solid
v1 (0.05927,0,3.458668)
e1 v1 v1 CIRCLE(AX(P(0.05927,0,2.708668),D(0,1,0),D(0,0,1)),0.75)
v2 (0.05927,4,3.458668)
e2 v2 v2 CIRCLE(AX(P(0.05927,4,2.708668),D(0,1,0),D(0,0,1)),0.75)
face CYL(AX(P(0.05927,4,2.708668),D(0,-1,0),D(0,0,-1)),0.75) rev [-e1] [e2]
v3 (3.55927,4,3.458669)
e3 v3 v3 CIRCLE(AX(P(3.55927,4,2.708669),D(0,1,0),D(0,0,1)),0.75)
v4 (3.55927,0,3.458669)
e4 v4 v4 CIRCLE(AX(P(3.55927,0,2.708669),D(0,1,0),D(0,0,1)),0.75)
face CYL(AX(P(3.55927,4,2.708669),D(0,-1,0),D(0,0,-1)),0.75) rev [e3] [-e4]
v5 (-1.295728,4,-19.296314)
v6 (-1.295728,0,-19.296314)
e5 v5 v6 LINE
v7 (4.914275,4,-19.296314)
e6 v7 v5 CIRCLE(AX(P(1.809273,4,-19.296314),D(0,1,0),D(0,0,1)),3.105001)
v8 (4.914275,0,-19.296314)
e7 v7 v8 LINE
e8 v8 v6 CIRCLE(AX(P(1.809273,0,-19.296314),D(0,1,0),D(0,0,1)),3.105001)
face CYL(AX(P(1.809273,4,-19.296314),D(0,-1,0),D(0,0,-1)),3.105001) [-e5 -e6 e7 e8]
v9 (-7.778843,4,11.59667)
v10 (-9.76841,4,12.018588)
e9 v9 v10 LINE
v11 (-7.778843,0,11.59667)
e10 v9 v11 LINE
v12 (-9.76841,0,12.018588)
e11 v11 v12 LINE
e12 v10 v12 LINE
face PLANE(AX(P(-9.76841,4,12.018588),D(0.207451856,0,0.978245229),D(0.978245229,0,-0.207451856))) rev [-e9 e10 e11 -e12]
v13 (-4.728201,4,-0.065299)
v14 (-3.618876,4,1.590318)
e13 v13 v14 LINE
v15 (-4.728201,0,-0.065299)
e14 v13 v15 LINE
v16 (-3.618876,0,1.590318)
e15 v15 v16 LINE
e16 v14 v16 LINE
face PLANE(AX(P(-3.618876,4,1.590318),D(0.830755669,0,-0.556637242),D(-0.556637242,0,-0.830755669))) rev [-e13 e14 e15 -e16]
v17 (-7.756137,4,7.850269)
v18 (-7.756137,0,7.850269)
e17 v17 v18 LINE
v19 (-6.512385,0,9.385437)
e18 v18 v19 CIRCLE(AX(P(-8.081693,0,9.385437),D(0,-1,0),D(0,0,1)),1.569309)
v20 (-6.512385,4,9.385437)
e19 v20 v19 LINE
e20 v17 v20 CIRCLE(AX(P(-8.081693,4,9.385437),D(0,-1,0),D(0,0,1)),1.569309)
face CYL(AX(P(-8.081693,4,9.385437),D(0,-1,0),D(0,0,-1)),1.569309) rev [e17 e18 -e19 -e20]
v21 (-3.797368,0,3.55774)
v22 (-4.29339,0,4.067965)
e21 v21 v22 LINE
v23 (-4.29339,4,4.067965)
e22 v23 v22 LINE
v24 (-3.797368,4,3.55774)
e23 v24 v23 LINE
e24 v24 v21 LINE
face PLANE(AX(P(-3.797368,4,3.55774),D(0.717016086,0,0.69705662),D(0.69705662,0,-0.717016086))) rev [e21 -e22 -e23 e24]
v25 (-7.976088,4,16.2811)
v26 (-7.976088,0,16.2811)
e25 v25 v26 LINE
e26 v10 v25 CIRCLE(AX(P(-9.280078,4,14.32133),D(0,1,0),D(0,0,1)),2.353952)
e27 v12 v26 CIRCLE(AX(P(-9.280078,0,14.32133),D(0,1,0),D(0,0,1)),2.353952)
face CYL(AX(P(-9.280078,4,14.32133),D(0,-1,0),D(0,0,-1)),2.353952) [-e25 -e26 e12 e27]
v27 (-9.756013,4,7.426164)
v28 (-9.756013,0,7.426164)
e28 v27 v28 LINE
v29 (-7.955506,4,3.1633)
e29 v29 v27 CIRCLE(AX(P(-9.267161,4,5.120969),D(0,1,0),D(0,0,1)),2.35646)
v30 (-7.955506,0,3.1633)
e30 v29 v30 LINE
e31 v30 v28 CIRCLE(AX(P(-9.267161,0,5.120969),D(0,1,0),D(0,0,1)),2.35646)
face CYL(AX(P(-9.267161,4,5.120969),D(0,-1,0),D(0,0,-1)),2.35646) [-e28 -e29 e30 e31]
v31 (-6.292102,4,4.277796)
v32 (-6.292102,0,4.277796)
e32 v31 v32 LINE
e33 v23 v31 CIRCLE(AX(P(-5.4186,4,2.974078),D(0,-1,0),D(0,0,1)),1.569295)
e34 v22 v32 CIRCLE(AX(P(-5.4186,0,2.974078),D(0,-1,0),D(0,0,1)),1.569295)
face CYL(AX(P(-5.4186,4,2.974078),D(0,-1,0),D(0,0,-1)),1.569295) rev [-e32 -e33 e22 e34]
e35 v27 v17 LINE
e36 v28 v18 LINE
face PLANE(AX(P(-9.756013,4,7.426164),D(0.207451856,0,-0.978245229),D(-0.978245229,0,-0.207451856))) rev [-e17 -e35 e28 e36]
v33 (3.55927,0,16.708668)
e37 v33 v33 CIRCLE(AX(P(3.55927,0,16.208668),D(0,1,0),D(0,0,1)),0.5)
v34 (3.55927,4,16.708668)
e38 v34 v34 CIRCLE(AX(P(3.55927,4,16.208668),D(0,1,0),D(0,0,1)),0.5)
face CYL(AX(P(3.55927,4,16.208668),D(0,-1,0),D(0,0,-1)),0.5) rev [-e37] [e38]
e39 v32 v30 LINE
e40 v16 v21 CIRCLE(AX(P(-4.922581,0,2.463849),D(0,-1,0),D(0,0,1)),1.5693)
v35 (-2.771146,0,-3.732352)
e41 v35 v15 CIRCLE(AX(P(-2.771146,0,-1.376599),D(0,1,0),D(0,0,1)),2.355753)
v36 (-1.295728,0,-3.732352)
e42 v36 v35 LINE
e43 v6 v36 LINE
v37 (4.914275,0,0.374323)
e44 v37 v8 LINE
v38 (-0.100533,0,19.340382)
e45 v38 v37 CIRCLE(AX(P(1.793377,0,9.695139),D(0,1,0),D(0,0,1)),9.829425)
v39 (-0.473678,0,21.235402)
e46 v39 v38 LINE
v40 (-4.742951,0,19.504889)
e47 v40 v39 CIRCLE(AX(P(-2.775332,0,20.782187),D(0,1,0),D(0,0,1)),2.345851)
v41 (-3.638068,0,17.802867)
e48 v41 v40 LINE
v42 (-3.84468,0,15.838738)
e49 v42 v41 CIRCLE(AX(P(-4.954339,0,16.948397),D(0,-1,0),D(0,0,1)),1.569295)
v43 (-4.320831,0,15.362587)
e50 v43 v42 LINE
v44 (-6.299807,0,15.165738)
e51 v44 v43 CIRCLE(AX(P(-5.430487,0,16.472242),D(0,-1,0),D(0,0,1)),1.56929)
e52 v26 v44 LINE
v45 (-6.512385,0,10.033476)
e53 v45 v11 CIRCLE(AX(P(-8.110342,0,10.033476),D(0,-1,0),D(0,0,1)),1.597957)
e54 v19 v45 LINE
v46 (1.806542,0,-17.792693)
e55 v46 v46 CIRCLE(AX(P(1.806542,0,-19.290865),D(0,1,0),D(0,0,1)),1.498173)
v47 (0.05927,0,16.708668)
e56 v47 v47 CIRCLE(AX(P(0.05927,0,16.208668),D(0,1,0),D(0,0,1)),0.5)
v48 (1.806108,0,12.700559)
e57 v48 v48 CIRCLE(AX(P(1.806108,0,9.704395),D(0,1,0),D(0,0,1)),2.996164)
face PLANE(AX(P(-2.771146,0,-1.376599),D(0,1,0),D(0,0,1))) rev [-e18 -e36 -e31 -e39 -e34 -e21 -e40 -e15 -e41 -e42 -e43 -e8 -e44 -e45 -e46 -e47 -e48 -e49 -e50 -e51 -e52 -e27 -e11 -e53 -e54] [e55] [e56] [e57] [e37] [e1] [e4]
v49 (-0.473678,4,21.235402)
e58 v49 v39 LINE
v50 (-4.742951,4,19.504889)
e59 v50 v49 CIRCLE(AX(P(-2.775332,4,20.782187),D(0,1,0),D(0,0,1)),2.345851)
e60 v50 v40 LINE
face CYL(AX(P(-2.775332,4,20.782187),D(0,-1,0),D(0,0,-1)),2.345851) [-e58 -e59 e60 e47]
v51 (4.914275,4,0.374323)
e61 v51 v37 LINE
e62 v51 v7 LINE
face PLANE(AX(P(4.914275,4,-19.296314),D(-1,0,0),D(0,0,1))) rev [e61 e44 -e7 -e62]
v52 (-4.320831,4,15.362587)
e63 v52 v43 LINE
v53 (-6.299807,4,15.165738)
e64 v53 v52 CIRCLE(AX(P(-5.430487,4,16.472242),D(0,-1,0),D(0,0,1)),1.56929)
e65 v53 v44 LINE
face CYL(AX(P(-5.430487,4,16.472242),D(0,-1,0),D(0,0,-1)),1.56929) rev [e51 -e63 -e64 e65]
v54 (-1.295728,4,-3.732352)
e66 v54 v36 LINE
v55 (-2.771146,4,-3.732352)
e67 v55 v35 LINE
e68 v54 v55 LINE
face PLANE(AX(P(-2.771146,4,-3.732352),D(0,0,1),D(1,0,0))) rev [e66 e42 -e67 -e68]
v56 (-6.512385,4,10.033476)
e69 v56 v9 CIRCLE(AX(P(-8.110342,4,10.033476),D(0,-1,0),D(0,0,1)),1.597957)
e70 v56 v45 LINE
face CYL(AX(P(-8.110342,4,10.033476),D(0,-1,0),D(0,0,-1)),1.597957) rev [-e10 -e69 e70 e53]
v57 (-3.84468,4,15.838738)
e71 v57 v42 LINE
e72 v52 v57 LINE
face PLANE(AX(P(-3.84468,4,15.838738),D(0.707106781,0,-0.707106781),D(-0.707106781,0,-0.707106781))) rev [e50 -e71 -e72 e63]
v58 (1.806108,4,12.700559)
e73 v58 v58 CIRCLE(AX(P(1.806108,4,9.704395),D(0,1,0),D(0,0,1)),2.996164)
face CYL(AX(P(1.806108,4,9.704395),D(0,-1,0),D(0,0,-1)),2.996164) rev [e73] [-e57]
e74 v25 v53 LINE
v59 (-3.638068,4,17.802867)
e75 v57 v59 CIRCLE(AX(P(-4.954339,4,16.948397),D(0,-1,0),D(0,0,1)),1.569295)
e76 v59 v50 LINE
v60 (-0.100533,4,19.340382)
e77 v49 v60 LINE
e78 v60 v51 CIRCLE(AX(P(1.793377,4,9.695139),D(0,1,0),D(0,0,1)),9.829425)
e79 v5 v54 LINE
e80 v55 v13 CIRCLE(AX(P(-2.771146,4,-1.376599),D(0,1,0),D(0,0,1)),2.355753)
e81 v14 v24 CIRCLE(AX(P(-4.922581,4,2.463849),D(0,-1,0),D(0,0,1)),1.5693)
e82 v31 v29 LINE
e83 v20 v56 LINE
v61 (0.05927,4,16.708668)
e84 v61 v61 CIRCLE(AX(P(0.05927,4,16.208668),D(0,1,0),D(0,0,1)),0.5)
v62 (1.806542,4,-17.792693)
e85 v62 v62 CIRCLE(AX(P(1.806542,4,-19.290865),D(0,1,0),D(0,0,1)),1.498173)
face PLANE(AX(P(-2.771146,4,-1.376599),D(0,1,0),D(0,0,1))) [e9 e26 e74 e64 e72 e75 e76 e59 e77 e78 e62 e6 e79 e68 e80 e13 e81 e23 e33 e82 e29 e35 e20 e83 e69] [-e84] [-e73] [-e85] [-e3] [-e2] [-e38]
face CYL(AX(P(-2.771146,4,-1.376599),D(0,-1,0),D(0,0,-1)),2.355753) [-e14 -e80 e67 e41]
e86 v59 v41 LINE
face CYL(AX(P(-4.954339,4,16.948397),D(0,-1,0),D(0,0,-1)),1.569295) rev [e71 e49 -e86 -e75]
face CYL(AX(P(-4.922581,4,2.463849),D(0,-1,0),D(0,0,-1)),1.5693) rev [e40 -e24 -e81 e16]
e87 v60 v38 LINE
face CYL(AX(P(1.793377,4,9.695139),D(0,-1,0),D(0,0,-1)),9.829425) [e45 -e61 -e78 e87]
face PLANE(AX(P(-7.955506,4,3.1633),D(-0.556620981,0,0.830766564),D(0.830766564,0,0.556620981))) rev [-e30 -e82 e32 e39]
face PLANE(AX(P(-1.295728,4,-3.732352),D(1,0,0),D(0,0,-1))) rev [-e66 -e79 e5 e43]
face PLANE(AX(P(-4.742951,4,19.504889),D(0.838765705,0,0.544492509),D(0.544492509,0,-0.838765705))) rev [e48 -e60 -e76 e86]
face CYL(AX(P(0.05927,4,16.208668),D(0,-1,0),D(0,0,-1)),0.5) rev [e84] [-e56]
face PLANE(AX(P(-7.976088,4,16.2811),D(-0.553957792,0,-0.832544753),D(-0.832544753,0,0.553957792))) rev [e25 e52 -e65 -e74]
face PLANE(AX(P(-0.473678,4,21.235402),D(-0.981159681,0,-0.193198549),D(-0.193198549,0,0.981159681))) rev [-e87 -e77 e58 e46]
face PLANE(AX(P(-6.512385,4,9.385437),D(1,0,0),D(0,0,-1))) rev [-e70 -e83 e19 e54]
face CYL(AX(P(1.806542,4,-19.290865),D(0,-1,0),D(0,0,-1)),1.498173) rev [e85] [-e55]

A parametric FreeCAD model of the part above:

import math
import FreeCAD as App
import Part
import Sketcher

V = App.Vector
Q = App.Units.Quantity

doc = App.newDocument("Part")
params = doc.addObject("Spreadsheet::Sheet", "Params")
for row, (alias, value) in enumerate([
    ("sketch1_diameter", "1 mm"),
    ("sketch1_diameter2", "1.499999 mm"),
    ("pad1_length", "4 mm"),
], start=1):
    params.set(f"A{row}", alias)
    params.set(f"B{row}", "=" + value)
    params.setAlias(f"B{row}", alias)

body = doc.addObject("PartDesign::Body", "Body")

sketch1 = body.newObject("Sketcher::SketchObject", "Sketch")
sketch1.AttachmentSupport = (doc.getObject("XZ_Plane"), [""])
sketch1.MapMode = "FlatFace"
sketch1.addGeometry([
    Part.LineSegment(V(-1.295728, -3.732352, 0), V(-2.771146, -3.732352, 0)),
    Part.ArcOfCircle(Part.Circle(V(-2.771146, -1.376599, 0), V(0, 0, 1), 2.355753), math.radians(146.176442), math.radians(270)),
    Part.LineSegment(V(-4.728201, -0.065299, 0), V(-3.618876, 1.590318, 0)),
    Part.ArcOfCircle(Part.Circle(V(-4.922581, 2.463849, 0), V(0, 0, 1), 1.5693), math.radians(-33.823558), math.radians(44.191331)),
    Part.LineSegment(V(-3.797368, 3.55774, 0), V(-4.29339, 4.067965, 0)),
    Part.ArcOfCircle(Part.Circle(V(-5.4186, 2.974078, 0), V(0, 0, 1), 1.569295), math.radians(44.191331), math.radians(123.822437)),
    Part.LineSegment(V(-6.292102, 4.277796, 0), V(-7.955506, 3.1633, 0)),
    Part.ArcOfCircle(Part.Circle(V(-9.267161, 5.120969, 0), V(0, 0, 1), 2.35646), math.radians(101.973066), math.radians(303.822437)),
    Part.LineSegment(V(-9.756013, 7.426164, 0), V(-7.756137, 7.850269, 0)),
    Part.ArcOfCircle(Part.Circle(V(-8.081693, 9.385437, 0), V(0, 0, 1), 1.569309), math.radians(-78.026934), math.radians(0)),
    Part.LineSegment(V(-6.512385, 9.385437, 0), V(-6.512385, 10.033476, 0)),
    Part.ArcOfCircle(Part.Circle(V(-8.110342, 10.033476, 0), V(0, 0, 1), 1.597957), math.radians(0), math.radians(78.026934)),
    Part.LineSegment(V(-7.778843, 11.59667, 0), V(-9.76841, 12.018588, 0)),
    Part.ArcOfCircle(Part.Circle(V(-9.280078, 14.32133, 0), V(0, 0, 1), 2.353952), math.radians(56.36104), math.radians(258.026934)),
    Part.LineSegment(V(-7.976088, 16.2811, 0), V(-6.299807, 15.165738, 0)),
    Part.ArcOfCircle(Part.Circle(V(-5.430487, 16.472242, 0), V(0, 0, 1), 1.56929), math.radians(-123.63896), math.radians(-45)),
    Part.LineSegment(V(-4.320831, 15.362587, 0), V(-3.84468, 15.838738, 0)),
    Part.ArcOfCircle(Part.Circle(V(-4.954339, 16.948397, 0), V(0, 0, 1), 1.569295), math.radians(-45), math.radians(32.98999)),
    Part.LineSegment(V(-3.638068, 17.802867, 0), V(-4.742951, 19.504889, 0)),
    Part.ArcOfCircle(Part.Circle(V(-2.775332, 20.782187, 0), V(0, 0, 1), 2.345851), math.radians(11.139507), math.radians(212.98999)),
    Part.LineSegment(V(-0.473678, 21.235402, 0), V(-0.100533, 19.340382, 0)),
    Part.ArcOfCircle(Part.Circle(V(1.793377, 9.695139, 0), V(0, 0, 1), 9.829425), math.radians(-71.487859), math.radians(101.109089)),
    Part.LineSegment(V(4.914275, 0.374323, 0), V(4.914275, -19.296314, 0)),
    Part.ArcOfCircle(Part.Circle(V(1.809273, -19.296314, 0), V(0, 0, 1), 3.105001), math.radians(180), math.radians(360)),
    Part.LineSegment(V(-1.295728, -19.296314, 0), V(-1.295728, -3.732352, 0)),
    Part.Circle(V(3.55927, 16.208668, 0), V(0, 0, 1), 0.5),
    Part.Circle(V(3.55927, 2.708669, 0), V(0, 0, 1), 0.75),
    Part.Circle(V(1.806108, 9.704395, 0), V(0, 0, 1), 2.996164),
    Part.Circle(V(0.05927, 16.208668, 0), V(0, 0, 1), 0.5),
    Part.Circle(V(0.05927, 2.708668, 0), V(0, 0, 1), 0.75),
    Part.Circle(V(1.806542, -19.290865, 0), V(0, 0, 1), 1.498173),
], False)
sketch1.addConstraint([
    Sketcher.Constraint("Tangent", 0, 2, 1, 2),
    Sketcher.Constraint("Tangent", 1, 1, 2, 1),
    Sketcher.Constraint("Tangent", 2, 2, 3, 1),
    Sketcher.Constraint("Tangent", 3, 2, 4, 1),
    Sketcher.Constraint("Tangent", 4, 2, 5, 1),
    Sketcher.Constraint("Tangent", 5, 2, 6, 1),
    Sketcher.Constraint("Tangent", 6, 2, 7, 2),
    Sketcher.Constraint("Tangent", 7, 1, 8, 1),
    Sketcher.Constraint("Tangent", 8, 2, 9, 1),
    Sketcher.Constraint("Tangent", 9, 2, 10, 1),
    Sketcher.Constraint("Tangent", 10, 2, 11, 1),
    Sketcher.Constraint("Tangent", 11, 2, 12, 1),
    Sketcher.Constraint("Tangent", 12, 2, 13, 2),
    Sketcher.Constraint("Tangent", 13, 1, 14, 1),
    Sketcher.Constraint("Tangent", 14, 2, 15, 1),
    Sketcher.Constraint("Tangent", 15, 2, 16, 1),
    Sketcher.Constraint("Tangent", 16, 2, 17, 1),
    Sketcher.Constraint("Tangent", 17, 2, 18, 1),
    Sketcher.Constraint("Tangent", 18, 2, 19, 2),
    Sketcher.Constraint("Tangent", 19, 1, 20, 1),
    Sketcher.Constraint("Coincident", 20, 2, 21, 2),
    Sketcher.Constraint("Coincident", 21, 1, 22, 1),
    Sketcher.Constraint("Tangent", 22, 2, 23, 2),
    Sketcher.Constraint("Tangent", 23, 1, 24, 1),
    Sketcher.Constraint("Coincident", 24, 2, 0, 1),
    Sketcher.Constraint("Horizontal", 0),
    Sketcher.Constraint("Vertical", 10),
    Sketcher.Constraint("Vertical", 22),
    Sketcher.Constraint("Vertical", 24),
    Sketcher.Constraint("Equal", 5, 17),
    Sketcher.Constraint("Equal", 25, 28),
    Sketcher.Constraint("Equal", 26, 29),
    Sketcher.Constraint("Horizontal", 25, 3, 28, 3),
    Sketcher.Constraint("Horizontal", 26, 3, 29, 3),
    Sketcher.Constraint("Vertical", 25, 3, 26, 3),
    Sketcher.Constraint("Vertical", 28, 3, 29, 3),
    Sketcher.Constraint("Diameter", 25, Q("1 mm")),
    Sketcher.Constraint("Diameter", 26, Q("1.499999 mm")),
    Sketcher.Constraint("Angle", 16, Q("45 deg")),
    Sketcher.Constraint("Radius", 23, Q("3.105001 mm")),
    Sketcher.Constraint("Angle", 18, Q("122.98999 deg")),
    Sketcher.Constraint("Radius", 3, Q("1.5693 mm")),
    Sketcher.Constraint("DistanceX", 28, 3, 25, 3, Q("3.500001 mm")),
    Sketcher.Constraint("Diameter", 27, Q("5.992328 mm")),
    Sketcher.Constraint("Radius", 7, Q("2.35646 mm")),
    Sketcher.Constraint("Radius", 9, Q("1.569309 mm")),
    Sketcher.Constraint("Radius", 13, Q("2.353952 mm")),
    Sketcher.Constraint("Radius", 15, Q("1.56929 mm")),
    Sketcher.Constraint("Radius", 19, Q("2.345851 mm")),
    Sketcher.Constraint("Diameter", 30, Q("2.996345 mm")),
    Sketcher.Constraint("Radius", 1, Q("2.355753 mm")),
    Sketcher.Constraint("Radius", 5, Q("1.569295 mm")),
    Sketcher.Constraint("Radius", 11, Q("1.597957 mm")),
    Sketcher.Constraint("Radius", 21, Q("9.829425 mm")),
    Sketcher.Constraint("DistanceY", 14, 2, 16, 2, Q("0.673 mm")),
    Sketcher.Constraint("DistanceX", 24, 2, 29, 3, Q("1.354998 mm")),
    Sketcher.Constraint("Distance", 18, Q("2.029198 mm")),
    Sketcher.Constraint("DistanceY", 10, 1, 10, 2, Q("0.648039 mm")),
    Sketcher.Constraint("DistanceY", 24, 1, 24, 2, Q("15.563962 mm")),
    Sketcher.Constraint("DistanceY", 1, 3, -1, 1, Q("1.376599 mm")),
    Sketcher.Constraint("DistanceX", 5, 3, -1, 1, Q("5.4186 mm")),
    Sketcher.Constraint("DistanceX", 1, 1, -1, 1, Q("4.728201 mm")),
    Sketcher.Constraint("DistanceY", 1, 1, -1, 1, Q("0.065299 mm")),
    Sketcher.Constraint("DistanceY", -1, 1, 6, 2, Q("3.1633 mm")),
    Sketcher.Constraint("DistanceY", -1, 1, 13, 1, Q("16.2811 mm")),
    Sketcher.Constraint("DistanceY", 5, 3, 11, 3, Q("7.059398 mm")),
    Sketcher.Constraint("DistanceY", 9, 3, 21, 3, Q("0.309702 mm")),
    Sketcher.Constraint("DistanceY", 26, 3, 7, 3, Q("2.412299 mm")),
    Sketcher.Constraint("DistanceY", 0, 2, 3, 3, Q("6.196201 mm")),
    Sketcher.Constraint("DistanceY", 7, 3, 8, 2, Q("2.7293 mm")),
    Sketcher.Constraint("DistanceX", 11, 3, 11, 2, Q("0.331499 mm")),
    Sketcher.Constraint("DistanceX", 13, 1, 15, 3, Q("2.545602 mm")),
    Sketcher.Constraint("DistanceX", 15, 2, 28, 3, Q("4.380101 mm")),
    Sketcher.Constraint("DistanceX", 19, 3, 20, 2, Q("2.674799 mm")),
    Sketcher.Constraint("Distance", 6, Q("2.002252 mm")),
    Sketcher.Constraint("Distance", 8, Q("2.04435 mm")),
    Sketcher.Constraint("Distance", 12, Q("2.033812 mm")),
    Sketcher.Constraint("Distance", 20, Q("1.931409 mm")),
    Sketcher.Constraint("DistanceX", -1, 1, 27, 3, Q("1.806108 mm")),
    Sketcher.Constraint("DistanceY", 21, 3, 25, 3, Q("6.513529 mm")),
    Sketcher.Constraint("DistanceX", 30, 3, 23, 3, Q("0.002731 mm")),
    Sketcher.Constraint("DistanceY", 23, 3, 30, 3, Q("0.005449 mm")),
    Sketcher.Constraint("DistanceY", -1, 1, 27, 3, Q("9.704395 mm")),
])
sketch1.setExpression("Constraints[36]", "Params.sketch1_diameter")
sketch1.setExpression("Constraints[37]", "Params.sketch1_diameter2")
pad1 = body.newObject("PartDesign::Pad", "Pad")
pad1.Profile = sketch1
pad1.setExpression("Length", "Params.pad1_length")
pad1.Reversed = True

doc.recompute()
